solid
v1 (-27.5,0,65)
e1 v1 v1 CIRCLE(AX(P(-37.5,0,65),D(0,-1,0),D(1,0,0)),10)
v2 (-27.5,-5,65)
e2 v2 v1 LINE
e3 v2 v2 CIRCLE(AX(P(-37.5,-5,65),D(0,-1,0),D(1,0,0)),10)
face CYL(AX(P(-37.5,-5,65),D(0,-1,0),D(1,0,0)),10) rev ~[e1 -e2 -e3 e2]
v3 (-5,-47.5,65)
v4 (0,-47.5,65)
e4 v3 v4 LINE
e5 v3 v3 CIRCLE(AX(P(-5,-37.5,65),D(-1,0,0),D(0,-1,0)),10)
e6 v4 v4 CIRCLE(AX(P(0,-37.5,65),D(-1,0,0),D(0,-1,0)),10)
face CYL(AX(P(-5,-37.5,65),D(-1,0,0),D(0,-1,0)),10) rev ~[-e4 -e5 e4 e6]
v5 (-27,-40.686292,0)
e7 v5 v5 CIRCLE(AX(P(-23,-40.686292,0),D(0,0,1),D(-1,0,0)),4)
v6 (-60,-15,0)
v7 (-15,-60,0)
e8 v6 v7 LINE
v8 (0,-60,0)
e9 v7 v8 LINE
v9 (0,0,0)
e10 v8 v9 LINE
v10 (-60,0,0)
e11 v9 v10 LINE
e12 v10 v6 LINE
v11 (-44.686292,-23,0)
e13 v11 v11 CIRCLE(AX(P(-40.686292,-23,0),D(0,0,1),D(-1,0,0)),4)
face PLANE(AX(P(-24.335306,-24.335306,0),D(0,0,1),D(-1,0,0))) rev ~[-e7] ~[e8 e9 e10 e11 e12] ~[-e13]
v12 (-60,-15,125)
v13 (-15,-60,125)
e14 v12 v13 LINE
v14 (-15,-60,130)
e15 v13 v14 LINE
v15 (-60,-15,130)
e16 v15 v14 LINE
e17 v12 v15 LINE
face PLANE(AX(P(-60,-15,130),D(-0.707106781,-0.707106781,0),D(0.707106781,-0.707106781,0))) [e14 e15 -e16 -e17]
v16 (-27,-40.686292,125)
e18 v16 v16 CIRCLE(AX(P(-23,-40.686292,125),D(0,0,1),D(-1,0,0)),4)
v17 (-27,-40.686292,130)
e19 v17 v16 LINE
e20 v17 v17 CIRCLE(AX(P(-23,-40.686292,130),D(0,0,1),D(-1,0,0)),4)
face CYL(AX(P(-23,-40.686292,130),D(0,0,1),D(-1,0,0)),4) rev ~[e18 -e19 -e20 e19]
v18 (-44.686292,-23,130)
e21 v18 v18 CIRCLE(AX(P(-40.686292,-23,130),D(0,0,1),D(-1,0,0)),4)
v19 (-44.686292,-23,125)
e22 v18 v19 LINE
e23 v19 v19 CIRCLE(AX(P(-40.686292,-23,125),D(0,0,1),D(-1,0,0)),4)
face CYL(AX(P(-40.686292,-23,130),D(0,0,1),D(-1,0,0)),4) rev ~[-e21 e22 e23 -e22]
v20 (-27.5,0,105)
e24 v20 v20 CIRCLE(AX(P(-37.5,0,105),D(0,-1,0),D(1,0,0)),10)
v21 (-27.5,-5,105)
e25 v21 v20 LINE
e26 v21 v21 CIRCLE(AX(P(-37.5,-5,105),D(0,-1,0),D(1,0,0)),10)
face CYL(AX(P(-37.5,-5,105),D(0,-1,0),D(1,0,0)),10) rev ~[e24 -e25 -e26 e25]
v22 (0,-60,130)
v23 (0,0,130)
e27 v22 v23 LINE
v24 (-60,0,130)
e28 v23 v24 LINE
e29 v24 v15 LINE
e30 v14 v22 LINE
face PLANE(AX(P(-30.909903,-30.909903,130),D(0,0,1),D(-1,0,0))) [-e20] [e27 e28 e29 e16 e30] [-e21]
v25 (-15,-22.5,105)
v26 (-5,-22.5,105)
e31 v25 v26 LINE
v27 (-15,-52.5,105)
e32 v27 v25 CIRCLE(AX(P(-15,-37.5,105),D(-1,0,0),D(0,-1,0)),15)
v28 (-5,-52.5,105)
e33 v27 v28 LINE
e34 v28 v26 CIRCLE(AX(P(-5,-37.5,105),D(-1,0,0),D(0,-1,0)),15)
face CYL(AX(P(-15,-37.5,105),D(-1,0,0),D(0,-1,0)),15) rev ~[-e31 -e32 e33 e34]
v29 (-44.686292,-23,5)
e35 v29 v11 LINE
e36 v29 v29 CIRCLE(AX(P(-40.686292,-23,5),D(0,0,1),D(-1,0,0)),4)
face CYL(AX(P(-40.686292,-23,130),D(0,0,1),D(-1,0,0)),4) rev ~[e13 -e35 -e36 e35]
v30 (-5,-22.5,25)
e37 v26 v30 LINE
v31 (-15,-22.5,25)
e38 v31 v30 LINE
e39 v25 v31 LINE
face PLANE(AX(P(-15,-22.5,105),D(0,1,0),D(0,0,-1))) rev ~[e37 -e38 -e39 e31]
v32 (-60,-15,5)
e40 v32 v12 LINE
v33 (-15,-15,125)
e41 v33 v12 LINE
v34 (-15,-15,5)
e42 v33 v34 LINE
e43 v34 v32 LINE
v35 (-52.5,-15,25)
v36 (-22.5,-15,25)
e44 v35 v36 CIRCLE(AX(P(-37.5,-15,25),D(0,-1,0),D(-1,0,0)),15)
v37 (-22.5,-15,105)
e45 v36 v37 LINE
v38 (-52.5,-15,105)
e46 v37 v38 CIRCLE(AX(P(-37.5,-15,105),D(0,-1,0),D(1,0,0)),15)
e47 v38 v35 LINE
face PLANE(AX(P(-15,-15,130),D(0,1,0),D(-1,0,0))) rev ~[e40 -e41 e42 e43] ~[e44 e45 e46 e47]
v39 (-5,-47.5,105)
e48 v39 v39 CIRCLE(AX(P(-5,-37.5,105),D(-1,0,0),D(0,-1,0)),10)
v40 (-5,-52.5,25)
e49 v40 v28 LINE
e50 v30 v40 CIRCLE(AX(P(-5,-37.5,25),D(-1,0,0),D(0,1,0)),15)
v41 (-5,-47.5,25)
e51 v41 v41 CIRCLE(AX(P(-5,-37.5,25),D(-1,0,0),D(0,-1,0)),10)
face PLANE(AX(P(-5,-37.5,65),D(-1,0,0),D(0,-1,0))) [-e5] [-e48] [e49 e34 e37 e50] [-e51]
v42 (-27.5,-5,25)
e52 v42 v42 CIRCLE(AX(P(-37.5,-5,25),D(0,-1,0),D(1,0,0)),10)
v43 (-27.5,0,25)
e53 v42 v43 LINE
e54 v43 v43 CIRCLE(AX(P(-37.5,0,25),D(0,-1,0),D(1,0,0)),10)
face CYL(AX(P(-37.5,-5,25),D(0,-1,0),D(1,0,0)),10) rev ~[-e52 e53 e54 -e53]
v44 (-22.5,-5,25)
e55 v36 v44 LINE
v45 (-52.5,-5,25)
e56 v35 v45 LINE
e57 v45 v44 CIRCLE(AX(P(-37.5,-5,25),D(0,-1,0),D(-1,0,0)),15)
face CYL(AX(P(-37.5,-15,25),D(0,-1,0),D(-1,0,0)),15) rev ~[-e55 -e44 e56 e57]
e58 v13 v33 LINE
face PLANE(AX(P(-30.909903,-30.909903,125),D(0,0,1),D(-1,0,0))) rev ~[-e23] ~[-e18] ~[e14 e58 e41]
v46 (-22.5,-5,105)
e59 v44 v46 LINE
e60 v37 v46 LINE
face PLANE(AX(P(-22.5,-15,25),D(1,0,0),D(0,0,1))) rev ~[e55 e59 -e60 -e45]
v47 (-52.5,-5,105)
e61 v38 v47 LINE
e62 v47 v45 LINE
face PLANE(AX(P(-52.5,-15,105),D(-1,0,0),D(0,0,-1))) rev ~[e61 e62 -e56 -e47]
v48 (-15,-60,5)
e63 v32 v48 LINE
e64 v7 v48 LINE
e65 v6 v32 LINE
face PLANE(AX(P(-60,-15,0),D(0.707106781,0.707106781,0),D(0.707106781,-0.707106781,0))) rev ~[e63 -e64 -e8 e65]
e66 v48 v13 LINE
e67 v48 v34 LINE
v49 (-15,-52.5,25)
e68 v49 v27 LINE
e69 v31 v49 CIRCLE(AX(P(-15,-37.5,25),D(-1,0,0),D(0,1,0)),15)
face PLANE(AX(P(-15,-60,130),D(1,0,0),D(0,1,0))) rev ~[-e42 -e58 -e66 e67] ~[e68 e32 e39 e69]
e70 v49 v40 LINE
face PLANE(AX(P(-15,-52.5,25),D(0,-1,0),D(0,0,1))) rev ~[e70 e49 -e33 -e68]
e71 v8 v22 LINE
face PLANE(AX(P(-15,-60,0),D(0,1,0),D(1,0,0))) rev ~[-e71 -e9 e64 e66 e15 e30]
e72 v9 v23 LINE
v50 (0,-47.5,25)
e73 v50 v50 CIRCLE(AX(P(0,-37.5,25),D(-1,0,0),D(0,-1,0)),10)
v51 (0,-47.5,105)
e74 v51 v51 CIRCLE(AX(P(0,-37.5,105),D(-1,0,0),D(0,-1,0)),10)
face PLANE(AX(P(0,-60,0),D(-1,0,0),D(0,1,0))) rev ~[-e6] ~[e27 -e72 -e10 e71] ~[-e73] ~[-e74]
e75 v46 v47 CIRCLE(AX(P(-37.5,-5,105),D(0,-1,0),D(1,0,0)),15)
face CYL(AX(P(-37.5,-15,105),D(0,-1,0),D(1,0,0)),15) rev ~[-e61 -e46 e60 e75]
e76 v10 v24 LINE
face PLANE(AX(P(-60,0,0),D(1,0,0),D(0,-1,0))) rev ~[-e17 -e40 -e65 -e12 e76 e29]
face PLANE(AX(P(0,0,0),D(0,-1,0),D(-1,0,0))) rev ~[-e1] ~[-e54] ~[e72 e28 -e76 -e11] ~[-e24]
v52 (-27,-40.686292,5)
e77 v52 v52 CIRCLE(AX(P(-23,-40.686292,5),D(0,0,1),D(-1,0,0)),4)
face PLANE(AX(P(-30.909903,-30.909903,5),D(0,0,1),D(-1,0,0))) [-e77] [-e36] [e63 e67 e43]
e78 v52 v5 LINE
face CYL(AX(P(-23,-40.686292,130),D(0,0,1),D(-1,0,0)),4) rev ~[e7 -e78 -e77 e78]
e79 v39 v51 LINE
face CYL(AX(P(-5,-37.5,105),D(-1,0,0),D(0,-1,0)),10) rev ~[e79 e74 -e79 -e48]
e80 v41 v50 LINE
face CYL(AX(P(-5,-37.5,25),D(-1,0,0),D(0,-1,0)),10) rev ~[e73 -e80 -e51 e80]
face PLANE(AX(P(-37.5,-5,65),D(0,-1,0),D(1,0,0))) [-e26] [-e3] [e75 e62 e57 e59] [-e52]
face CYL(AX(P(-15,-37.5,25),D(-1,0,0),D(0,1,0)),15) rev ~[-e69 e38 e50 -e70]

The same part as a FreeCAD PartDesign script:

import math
import FreeCAD as App
import Part
import Sketcher

V = App.Vector
Q = App.Units.Quantity

doc = App.newDocument("Part")
body = doc.addObject("PartDesign::Body", "Body")

sketch1 = doc.addObject("Sketcher::SketchObject", "Sketch")
body.addObject(sketch1)
sketch1.AttachmentSupport = (doc.XY_Plane, [""])
sketch1.MapMode = "FlatFace"
sketch1.addGeometry(Part.LineSegment(V(0, 60, 0), V(0, 0, 0)), False)
sketch1.addGeometry(Part.LineSegment(V(0, 0, 0), V(60, 0, 0)), False)
sketch1.addGeometry(Part.LineSegment(V(60, 0, 0), V(60, 15, 0)), False)
sketch1.addGeometry(Part.LineSegment(V(60, 15, 0), V(15, 60, 0)), False)
sketch1.addGeometry(Part.LineSegment(V(15, 60, 0), V(0, 60, 0)), False)
sketch1.addConstraint(Sketcher.Constraint("Coincident", 0, 2, 1, 1))
sketch1.addConstraint(Sketcher.Constraint("Coincident", 1, 2, 2, 1))
sketch1.addConstraint(Sketcher.Constraint("Coincident", 2, 2, 3, 1))
sketch1.addConstraint(Sketcher.Constraint("Coincident", 3, 2, 4, 1))
sketch1.addConstraint(Sketcher.Constraint("Coincident", 4, 2, 0, 1))
sketch1.addConstraint(Sketcher.Constraint("Vertical", 0))
sketch1.addConstraint(Sketcher.Constraint("Horizontal", 1))
sketch1.addConstraint(Sketcher.Constraint("Vertical", 2))
sketch1.addConstraint(Sketcher.Constraint("Horizontal", 4))
sketch1.addConstraint(Sketcher.Constraint("Coincident", 0, 2, -1, 1))
sketch1.addConstraint(Sketcher.Constraint("Equal", 1, 0))
sketch1.addConstraint(Sketcher.Constraint("Equal", 4, 2))
sketch1.addConstraint(Sketcher.Constraint("DistanceX", 1, 1, 1, 2, Q("60 mm")))
sketch1.addConstraint(Sketcher.Constraint("DistanceX", 4, 2, 4, 1, Q("15 mm")))
pad1 = doc.addObject("PartDesign::Pad", "Pad")
body.addObject(pad1)
pad1.Profile = sketch1
pad1.Length = 130

sketch2 = doc.addObject("Sketcher::SketchObject", "Sketch001")
body.addObject(sketch2)
sketch2.AttachmentSupport = (doc.XY_Plane, [""])
sketch2.MapMode = "FlatFace"
sketch2.AttachmentOffset = App.Placement(V(0, 0, 130), App.Rotation())
sketch2.addGeometry(Part.LineSegment(V(15, 15, 0), V(60, 15, 0)), False)
sketch2.addGeometry(Part.LineSegment(V(60, 15, 0), V(15, 60, 0)), False)
sketch2.addGeometry(Part.LineSegment(V(15, 60, 0), V(15, 15, 0)), False)
sketch2.addConstraint(Sketcher.Constraint("Coincident", 0, 2, 1, 1))
sketch2.addConstraint(Sketcher.Constraint("Coincident", 1, 2, 2, 1))
sketch2.addConstraint(Sketcher.Constraint("Coincident", 2, 2, 0, 1))
sketch2.addConstraint(Sketcher.Constraint("Horizontal", 0))
sketch2.addConstraint(Sketcher.Constraint("Vertical", 2))
sketch2.addConstraint(Sketcher.Constraint("Equal", 0, 2))
sketch2.addConstraint(Sketcher.Constraint("DistanceX", 0, 1, 0, 2, Q("45 mm")))
sketch2.addConstraint(Sketcher.Constraint("DistanceX", -1, 1, 0, 2, Q("60 mm")))
sketch2.addConstraint(Sketcher.Constraint("DistanceY", -1, 1, 0, 2, Q("15 mm")))
pocket1 = doc.addObject("PartDesign::Pocket", "Pocket")
body.addObject(pocket1)
pocket1.Profile = sketch2
pocket1.Length = 125

sketch3 = doc.addObject("Sketcher::SketchObject", "Sketch002")
body.addObject(sketch3)
sketch3.AttachmentSupport = (doc.YZ_Plane, [""])
sketch3.MapMode = "FlatFace"
sketch3.AttachmentOffset = App.Placement(V(0, 0, 15), App.Rotation())
sketch3.addGeometry(Part.LineSegment(V(52, 25, 0), V(52, 105, 0)), False)
sketch3.addGeometry(Part.ArcOfCircle(Part.Circle(V(38, 105, 0), V(0, 0, 1), 15), math.radians(0), math.radians(180)), False)
sketch3.addGeometry(Part.LineSegment(V(22, 105, 0), V(22, 25, 0)), False)
sketch3.addGeometry(Part.ArcOfCircle(Part.Circle(V(38, 25, 0), V(0, 0, 1), 15), math.radians(180), math.radians(360)), False)
sketch3.addConstraint(Sketcher.Constraint("Tangent", 0, 2, 1, 1))
sketch3.addConstraint(Sketcher.Constraint("Tangent", 1, 2, 2, 1))
sketch3.addConstraint(Sketcher.Constraint("Tangent", 2, 2, 3, 1))
sketch3.addConstraint(Sketcher.Constraint("Tangent", 3, 2, 0, 1))
sketch3.addConstraint(Sketcher.Constraint("Vertical", 0))
sketch3.addConstraint(Sketcher.Constraint("Vertical", 2))
sketch3.addConstraint(Sketcher.Constraint("Radius", 1, Q("15 mm")))
sketch3.addConstraint(Sketcher.Constraint("DistanceY", 0, 1, 0, 2, Q("80 mm")))
sketch3.addConstraint(Sketcher.Constraint("DistanceY", -1, 1, 1, 3, Q("105 mm")))
sketch3.addConstraint(Sketcher.Constraint("DistanceX", -1, 1, 1, 3, Q("37.5 mm")))
pocket2 = doc.addObject("PartDesign::Pocket", "Pocket001")
body.addObject(pocket2)
pocket2.Profile = sketch3
pocket2.Length = 10

sketch4 = doc.addObject("Sketcher::SketchObject", "Sketch003")
body.addObject(sketch4)
sketch4.AttachmentSupport = (doc.XZ_Plane, [""])
sketch4.MapMode = "FlatFace"
sketch4.AttachmentOffset = App.Placement(V(0, 0, -15), App.Rotation())
sketch4.addGeometry(Part.LineSegment(V(22, 25, 0), V(22, 105, 0)), False)
sketch4.addGeometry(Part.ArcOfCircle(Part.Circle(V(38, 105, 0), V(0, 0, 1), 15), math.radians(0), math.radians(180)), False)
sketch4.addGeometry(Part.LineSegment(V(52, 105, 0), V(52, 25, 0)), False)
sketch4.addGeometry(Part.ArcOfCircle(Part.Circle(V(38, 25, 0), V(0, 0, 1), 15), math.radians(180), math.radians(360)), False)
sketch4.addConstraint(Sketcher.Constraint("Tangent", 0, 2, 1, 2))
sketch4.addConstraint(Sketcher.Constraint("Tangent", 1, 1, 2, 1))
sketch4.addConstraint(Sketcher.Constraint("Tangent", 2, 2, 3, 2))
sketch4.addConstraint(Sketcher.Constraint("Tangent", 3, 1, 0, 1))
sketch4.addConstraint(Sketcher.Constraint("Vertical", 0))
sketch4.addConstraint(Sketcher.Constraint("Vertical", 2))
sketch4.addConstraint(Sketcher.Constraint("Radius", 1, Q("15 mm")))
sketch4.addConstraint(Sketcher.Constraint("DistanceY", 0, 1, 0, 2, Q("80 mm")))
sketch4.addConstraint(Sketcher.Constraint("DistanceY", -1, 1, 1, 3, Q("105 mm")))
sketch4.addConstraint(Sketcher.Constraint("DistanceX", -1, 1, 1, 3, Q("37.5 mm")))
pocket3 = doc.addObject("PartDesign::Pocket", "Pocket002")
body.addObject(pocket3)
pocket3.Profile = sketch4
pocket3.Length = 10
pocket3.Reversed = True

sketch5 = doc.addObject("Sketcher::SketchObject", "Sketch004")
body.addObject(sketch5)
sketch5.AttachmentSupport = (doc.XY_Plane, [""])
sketch5.MapMode = "FlatFace"
sketch5.AttachmentOffset = App.Placement(V(0, 0, 130), App.Rotation())
sketch5.addGeometry(Part.LineSegment(V(15, 15, 0), V(60, 15, 0)), False)
sketch5.addGeometry(Part.LineSegment(V(60, 15, 0), V(15, 60, 0)), False)
sketch5.addGeometry(Part.LineSegment(V(15, 60, 0), V(15, 15, 0)), False)
sketch5.addConstraint(Sketcher.Constraint("Coincident", 0, 2, 1, 1))
sketch5.addConstraint(Sketcher.Constraint("Coincident", 1, 2, 2, 1))
sketch5.addConstraint(Sketcher.Constraint("Coincident", 2, 2, 0, 1))
sketch5.addConstraint(Sketcher.Constraint("Horizontal", 0))
sketch5.addConstraint(Sketcher.Constraint("Vertical", 2))
sketch5.addConstraint(Sketcher.Constraint("Equal", 0, 2))
sketch5.addConstraint(Sketcher.Constraint("DistanceX", 0, 1, 0, 2, Q("45 mm")))
sketch5.addConstraint(Sketcher.Constraint("DistanceX", -1, 1, 0, 2, Q("60 mm")))
sketch5.addConstraint(Sketcher.Constraint("DistanceY", -1, 1, 0, 2, Q("15 mm")))
pad2 = doc.addObject("PartDesign::Pad", "Pad001")
body.addObject(pad2)
pad2.Profile = sketch5
pad2.Length = 5
pad2.Reversed = True

sketch6 = doc.addObject("Sketcher::SketchObject", "Sketch005")
body.addObject(sketch6)
sketch6.AttachmentSupport = (doc.XZ_Plane, [""])
sketch6.MapMode = "FlatFace"
sketch6.AttachmentOffset = App.Placement(V(0, 0, -5), App.Rotation())
sketch6.addGeometry(Part.Circle(V(38, 105, 0), V(0, 0, 1), 10), False)
sketch6.addGeometry(Part.Circle(V(38, 65, 0), V(0, 0, 1), 10), False)
sketch6.addGeometry(Part.Circle(V(38, 25, 0), V(0, 0, 1), 10), False)
sketch6.addConstraint(Sketcher.Constraint("Equal", 0, 1))
sketch6.addConstraint(Sketcher.Constraint("Equal", 1, 2))
sketch6.addConstraint(Sketcher.Constraint("Vertical", 0, 3, 1, 3))
sketch6.addConstraint(Sketcher.Constraint("Vertical", 1, 3, 2, 3))
sketch6.addConstraint(Sketcher.Constraint("Diameter", 0, Q("20 mm")))
sketch6.addConstraint(Sketcher.Constraint("DistanceY", -1, 1, 0, 3, Q("105 mm")))
sketch6.addConstraint(Sketcher.Constraint("DistanceY", -1, 1, 1, 3, Q("65 mm")))
sketch6.addConstraint(Sketcher.Constraint("DistanceY", -1, 1, 2, 3, Q("25 mm")))
sketch6.addConstraint(Sketcher.Constraint("DistanceX", -1, 1, 0, 3, Q("37.5 mm")))
pocket4 = doc.addObject("PartDesign::Pocket", "Pocket003")
body.addObject(pocket4)
pocket4.Profile = sketch6
pocket4.Type = "ThroughAll"
pocket4.Reversed = True

sketch7 = doc.addObject("Sketcher::SketchObject", "Sketch006")
body.addObject(sketch7)
sketch7.AttachmentSupport = (doc.YZ_Plane, [""])
sketch7.MapMode = "FlatFace"
sketch7.AttachmentOffset = App.Placement(V(0, 0, 5), App.Rotation())
sketch7.addGeometry(Part.Circle(V(38, 105, 0), V(0, 0, 1), 10), False)
sketch7.addGeometry(Part.Circle(V(38, 65, 0), V(0, 0, 1), 10), False)
sketch7.addGeometry(Part.Circle(V(38, 25, 0), V(0, 0, 1), 10), False)
sketch7.addConstraint(Sketcher.Constraint("Equal", 0, 1))
sketch7.addConstraint(Sketcher.Constraint("Equal", 1, 2))
sketch7.addConstraint(Sketcher.Constraint("Vertical", 0, 3, 1, 3))
sketch7.addConstraint(Sketcher.Constraint("Vertical", 1, 3, 2, 3))
sketch7.addConstraint(Sketcher.Constraint("Diameter", 0, Q("20 mm")))
sketch7.addConstraint(Sketcher.Constraint("DistanceY", -1, 1, 0, 3, Q("105 mm")))
sketch7.addConstraint(Sketcher.Constraint("DistanceY", -1, 1, 1, 3, Q("65 mm")))
sketch7.addConstraint(Sketcher.Constraint("DistanceY", -1, 1, 2, 3, Q("25 mm")))
sketch7.addConstraint(Sketcher.Constraint("DistanceX", -1, 1, 0, 3, Q("37.5 mm")))
pocket5 = doc.addObject("PartDesign::Pocket", "Pocket004")
body.addObject(pocket5)
pocket5.Profile = sketch7
pocket5.Type = "ThroughAll"

sketch8 = doc.addObject("Sketcher::SketchObject", "Sketch007")
body.addObject(sketch8)
sketch8.AttachmentSupport = (doc.XY_Plane, [""])
sketch8.MapMode = "FlatFace"
sketch8.AttachmentOffset = App.Placement(V(0, 0, 130), App.Rotation())
sketch8.addGeometry(Part.Circle(V(40.7, 23, 0), V(0, 0, 1), 4), False)
sketch8.addGeometry(Part.Circle(V(23, 40.7, 0), V(0, 0, 1), 4), False)
sketch8.addConstraint(Sketcher.Constraint("Equal", 0, 1))
sketch8.addConstraint(Sketcher.Constraint("Diameter", 0, Q("8 mm")))
sketch8.addConstraint(Sketcher.Constraint("DistanceY", -1, 1, 0, 3, Q("23 mm")))
sketch8.addConstraint(Sketcher.Constraint("DistanceX", -1, 1, 1, 3, Q("23 mm")))
sketch8.addConstraint(Sketcher.Constraint("DistanceX", -1, 1, 0, 3, Q("40.686292 mm")))
sketch8.addConstraint(Sketcher.Constraint("DistanceY", -1, 1, 1, 3, Q("40.686292 mm")))
pocket6 = doc.addObject("PartDesign::Pocket", "Pocket005")
body.addObject(pocket6)
pocket6.Profile = sketch8
pocket6.Type = "ThroughAll"
body2 = doc.addObject("PartDesign::Body", "Body001")
doc.recompute()

body.Placement = App.Placement(V(0, 0, 0), App.Rotation(V(0, 0, 1), 180))
boolean = doc.addObject("PartDesign::Boolean", "Boolean")
body2.addObject(boolean)
boolean.Type = "Fuse"
boolean.addObjects([body])

doc.recompute()
